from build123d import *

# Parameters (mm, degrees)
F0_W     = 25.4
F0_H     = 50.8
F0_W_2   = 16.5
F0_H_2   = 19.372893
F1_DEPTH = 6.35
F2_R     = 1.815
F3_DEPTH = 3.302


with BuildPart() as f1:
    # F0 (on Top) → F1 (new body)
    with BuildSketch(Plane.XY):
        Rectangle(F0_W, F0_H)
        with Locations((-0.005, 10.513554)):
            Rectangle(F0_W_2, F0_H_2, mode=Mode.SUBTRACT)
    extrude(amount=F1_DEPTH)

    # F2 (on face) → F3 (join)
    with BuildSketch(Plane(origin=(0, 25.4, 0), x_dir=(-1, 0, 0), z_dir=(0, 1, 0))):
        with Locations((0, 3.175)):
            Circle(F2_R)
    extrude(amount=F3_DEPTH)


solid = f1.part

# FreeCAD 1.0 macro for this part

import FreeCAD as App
import Part
import Sketcher
from FreeCAD import Vector
Q = App.Units.Quantity


def add_polygon(sketch, points):
    """Adds a closed chain of lines whose ends are joined by coincident constraints."""
    first, n = sketch.GeometryCount, len(points)
    for a, b in zip(points, points[1:] + points[:1]):
        sketch.addGeometry(Part.LineSegment(App.Vector(*a, 0), App.Vector(*b, 0)), False)
    for i in range(n):
        sketch.addConstraint(Sketcher.Constraint("Coincident", first + i, 2, first + (i + 1) % n, 1))

doc = App.newDocument("Part")
body = doc.addObject("PartDesign::Body", "Body")

sketch1 = doc.addObject("Sketcher::SketchObject", "Sketch")
body.addObject(sketch1)
sketch1.AttachmentSupport = (doc.XY_Plane, [""])
sketch1.MapMode = "FlatFace"
add_polygon(sketch1, [(-13, 25), (-13, -25), (13, -25), (13, 25)])
add_polygon(sketch1, [(8, 1), (-8, 1), (-8, 20), (8, 20)])
sketch1.addConstraint([
    Sketcher.Constraint("Vertical", 0),
    Sketcher.Constraint("Horizontal", 1),
    Sketcher.Constraint("Vertical", 2),
    Sketcher.Constraint("Horizontal", 3),
    Sketcher.Constraint("Horizontal", 4),
    Sketcher.Constraint("Vertical", 5),
    Sketcher.Constraint("Horizontal", 6),
    Sketcher.Constraint("Vertical", 7),
    Sketcher.Constraint("Symmetric", 0, 2, 2, 2, -1, 1),
    Sketcher.Constraint("DistanceX", 1, 1, 1, 2, Q("1 in")),
    Sketcher.Constraint("DistanceY", 0, 2, 0, 1, Q("2 in")),
    Sketcher.Constraint("DistanceX", 4, 2, -1, 1, Q("0.325 in")),
    Sketcher.Constraint("DistanceX", 4, 2, 4, 1, Q("16.5 mm")),
    Sketcher.Constraint("DistanceY", -1, 1, 5, 2, Q("20.200001 mm")),
    Sketcher.Constraint("DistanceY", 5, 1, 5, 2, Q("19.372893 mm")),
])
pad1 = doc.addObject("PartDesign::Pad", "Pad")
body.addObject(pad1)
pad1.Profile = sketch1
pad1.Length = Q("0.25 in")

sketch2 = doc.addObject("Sketcher::SketchObject", "Sketch001")
body.addObject(sketch2)
sketch2.AttachmentSupport = (doc.XZ_Plane, [""])
sketch2.MapMode = "FlatFace"
sketch2.AttachmentOffset = App.Placement(Vector(0, 0, -1 * 25.4), App.Rotation())
sketch2.addGeometry(Part.Circle(Vector(0, 3.2, 0), Vector(0, 0, 1), 1.8), False)
sketch2.addConstraint([
    Sketcher.Constraint("PointOnObject", 0, 3, -2),
    Sketcher.Constraint("Diameter", 0, Q("3.63 mm")),
    Sketcher.Constraint("DistanceY", -1, 1, 0, 3, Q("0.125 in")),
])
pad2 = doc.addObject("PartDesign::Pad", "Pad001")
body.addObject(pad2)
pad2.Profile = sketch2
pad2.Length = Q("0.13 in")
pad2.Reversed = True

doc.recompute()
